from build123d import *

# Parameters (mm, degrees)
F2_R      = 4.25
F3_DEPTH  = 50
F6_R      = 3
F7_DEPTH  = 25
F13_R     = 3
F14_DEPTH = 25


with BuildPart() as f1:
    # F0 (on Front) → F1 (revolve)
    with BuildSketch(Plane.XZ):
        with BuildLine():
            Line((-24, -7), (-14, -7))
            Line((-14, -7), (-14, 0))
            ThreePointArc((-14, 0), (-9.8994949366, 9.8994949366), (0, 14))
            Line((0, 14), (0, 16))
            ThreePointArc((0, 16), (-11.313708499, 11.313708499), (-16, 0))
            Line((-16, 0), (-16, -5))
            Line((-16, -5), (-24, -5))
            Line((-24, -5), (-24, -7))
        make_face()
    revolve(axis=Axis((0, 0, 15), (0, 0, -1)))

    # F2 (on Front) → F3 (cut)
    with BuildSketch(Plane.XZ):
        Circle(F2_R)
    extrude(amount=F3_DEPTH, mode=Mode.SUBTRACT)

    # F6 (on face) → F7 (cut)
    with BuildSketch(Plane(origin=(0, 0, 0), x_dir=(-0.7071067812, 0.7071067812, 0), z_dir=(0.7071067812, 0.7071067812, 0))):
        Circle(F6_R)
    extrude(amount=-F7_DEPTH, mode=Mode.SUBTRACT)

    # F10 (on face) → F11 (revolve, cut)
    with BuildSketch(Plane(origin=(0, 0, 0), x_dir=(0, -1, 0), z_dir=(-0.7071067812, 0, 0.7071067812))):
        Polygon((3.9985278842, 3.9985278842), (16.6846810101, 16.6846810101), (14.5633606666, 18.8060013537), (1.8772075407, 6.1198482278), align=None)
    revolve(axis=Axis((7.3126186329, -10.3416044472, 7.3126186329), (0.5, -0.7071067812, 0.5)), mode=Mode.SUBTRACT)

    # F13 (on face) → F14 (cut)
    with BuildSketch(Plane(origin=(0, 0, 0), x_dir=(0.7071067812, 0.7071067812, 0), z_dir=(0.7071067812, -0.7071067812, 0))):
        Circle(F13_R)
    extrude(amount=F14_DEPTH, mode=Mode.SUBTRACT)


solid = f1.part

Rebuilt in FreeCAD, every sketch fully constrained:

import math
import FreeCAD as App
import Part
import Sketcher

V = App.Vector
Q = App.Units.Quantity


def add_polygon(sketch, points):
    """Adds a closed chain of lines whose ends are joined by coincident constraints."""
    first, n = sketch.GeometryCount, len(points)
    for a, b in zip(points, points[1:] + points[:1]):
        sketch.addGeometry(Part.LineSegment(App.Vector(*a, 0), App.Vector(*b, 0)), False)
    for i in range(n):
        sketch.addConstraint(Sketcher.Constraint("Coincident", first + i, 2, first + (i + 1) % n, 1))

doc = App.newDocument("Part")
body = doc.addObject("PartDesign::Body", "Body")

sketch1 = body.newObject("Sketcher::SketchObject", "Sketch")
sketch1.AttachmentSupport = (doc.getObject("XZ_Plane"), [""])
sketch1.MapMode = "FlatFace"
sketch1.addGeometry([
    Part.LineSegment(V(-24, -7, 0), V(-14, -7, 0)),
    Part.LineSegment(V(-14, -7, 0), V(-14, 0, 0)),
    Part.ArcOfCircle(Part.Circle(V(0, 0, 0), V(0, 0, 1), 14), math.radians(90), math.radians(180)),
    Part.LineSegment(V(0, 14, 0), V(0, 16, 0)),
    Part.ArcOfCircle(Part.Circle(V(0, 0, 0), V(0, 0, 1), 16), math.radians(90), math.radians(180)),
    Part.LineSegment(V(-16, 0, 0), V(-16, -5, 0)),
    Part.LineSegment(V(-16, -5, 0), V(-24, -5, 0)),
    Part.LineSegment(V(-24, -5, 0), V(-24, -7, 0)),
], False)
sketch1.addConstraint([
    Sketcher.Constraint("Coincident", 0, 2, 1, 1),
    Sketcher.Constraint("Tangent", 1, 2, 2, 2),
    Sketcher.Constraint("Coincident", 2, 1, 3, 1),
    Sketcher.Constraint("Coincident", 3, 2, 4, 1),
    Sketcher.Constraint("Tangent", 4, 2, 5, 1),
    Sketcher.Constraint("Coincident", 5, 2, 6, 1),
    Sketcher.Constraint("Coincident", 6, 2, 7, 1),
    Sketcher.Constraint("Coincident", 7, 2, 0, 1),
    Sketcher.Constraint("Horizontal", 0),
    Sketcher.Constraint("Vertical", 1),
    Sketcher.Constraint("Vertical", 3),
    Sketcher.Constraint("Vertical", 5),
    Sketcher.Constraint("Horizontal", 6),
    Sketcher.Constraint("Vertical", 7),
    Sketcher.Constraint("Coincident", 2, 3, -1, 1),
    Sketcher.Constraint("Coincident", 4, 3, -1, 1),
    Sketcher.Constraint("PointOnObject", 2, 1, -2),
    Sketcher.Constraint("Equal", 3, 7),
    Sketcher.Constraint("Radius", 2, Q("14 mm")),
    Sketcher.Constraint("Radius", 4, Q("16 mm")),
    Sketcher.Constraint("DistanceX", 0, 1, 0, 2, Q("10 mm")),
    Sketcher.Constraint("DistanceY", 1, 1, 1, 2, Q("7 mm")),
])
revolution = body.newObject("PartDesign::Revolution", "Revolution")
revolution.Profile = sketch1
revolution.ReferenceAxis = (sketch1, ["V_Axis"])
revolution.Angle = 360

sketch2 = body.newObject("Sketcher::SketchObject", "Sketch001")
sketch2.AttachmentSupport = (doc.getObject("XZ_Plane"), [""])
sketch2.MapMode = "FlatFace"
sketch2.addGeometry(Part.Circle(V(0, 0, 0), V(0, 0, 1), 4.2), False)
sketch2.addConstraint([
    Sketcher.Constraint("Coincident", 0, 3, -1, 1),
    Sketcher.Constraint("Diameter", 0, Q("8.5 mm")),
])
pocket1 = body.newObject("PartDesign::Pocket", "Pocket")
pocket1.Profile = sketch2
pocket1.Length = 50
pocket1.Reversed = True

sketch3 = body.newObject("Sketcher::SketchObject", "Sketch002")
sketch3.Placement = App.Placement(V(0, 0, 0), App.Rotation(V(-0.707106781, 0.707106781, 0), V(0, 0, 0.999999999), V(0.707106781, 0.707106781, 0), "ZXY"))
sketch3.addGeometry(Part.Circle(V(0, 0, 0), V(0, 0, 1), 3), False)
sketch3.addConstraint([
    Sketcher.Constraint("Coincident", 0, 3, -1, 1),
    Sketcher.Constraint("Diameter", 0, Q("6 mm")),
])
pocket2 = body.newObject("PartDesign::Pocket", "Pocket001")
pocket2.Profile = sketch3
pocket2.Length = 25

sketch4 = body.newObject("Sketcher::SketchObject", "Sketch003")
sketch4.Placement = App.Placement(V(0, 0, 0), App.Rotation(V(0, -1, 0), V(0.707106781, 0, 0.707106781), V(-0.707106781, 0, 0.707106781), "ZXY"))
add_polygon(sketch4, [(4, 4), (16.7, 16.7), (14.6, 18.8), (1.9, 6.1)])
sketch4.addGeometry(Part.LineSegment(V(4, 4, 0), V(16.7, 16.7, 0)), True)
sketch4.addConstraint([
    Sketcher.Constraint("Coincident", 4, 1, 3, 2),
    Sketcher.Constraint("Coincident", 4, 2, 0, 2),
    Sketcher.Constraint("Perpendicular", 0, 1),
    Sketcher.Constraint("Perpendicular", 1, 2),
    Sketcher.Constraint("Perpendicular", 2, 3),
    Sketcher.Constraint("Angle", 0, Q("45 deg")),
    Sketcher.Constraint("Distance", 1, Q("3 mm")),
    Sketcher.Constraint("DistanceY", -1, 1, 1, 2, Q("18.806001 mm")),
    Sketcher.Constraint("Distance", 0, Q("17.94093 mm")),
    Sketcher.Constraint("DistanceX", -1, 1, 0, 2, Q("16.684681 mm")),
])
groove = body.newObject("PartDesign::Groove", "Groove")
groove.Profile = sketch4
groove.ReferenceAxis = (sketch4, ["Axis0"])
groove.Angle = 360

sketch5 = body.newObject("Sketcher::SketchObject", "Sketch004")
sketch5.Placement = App.Placement(V(0, 0, 0), App.Rotation(V(0.707106781, 0.707106781, 0), V(0, 0, 0.999999999), V(0.707106781, -0.707106781, 0), "ZXY"))
sketch5.addGeometry(Part.Circle(V(0, 0, 0), V(0, 0, 1), 3), False)
sketch5.addConstraint([
    Sketcher.Constraint("Coincident", 0, 3, -1, 1),
    Sketcher.Constraint("Diameter", 0, Q("6 mm")),
])
pocket3 = body.newObject("PartDesign::Pocket", "Pocket002")
pocket3.Profile = sketch5
pocket3.Length = 25
pocket3.Reversed = True

doc.recompute()
